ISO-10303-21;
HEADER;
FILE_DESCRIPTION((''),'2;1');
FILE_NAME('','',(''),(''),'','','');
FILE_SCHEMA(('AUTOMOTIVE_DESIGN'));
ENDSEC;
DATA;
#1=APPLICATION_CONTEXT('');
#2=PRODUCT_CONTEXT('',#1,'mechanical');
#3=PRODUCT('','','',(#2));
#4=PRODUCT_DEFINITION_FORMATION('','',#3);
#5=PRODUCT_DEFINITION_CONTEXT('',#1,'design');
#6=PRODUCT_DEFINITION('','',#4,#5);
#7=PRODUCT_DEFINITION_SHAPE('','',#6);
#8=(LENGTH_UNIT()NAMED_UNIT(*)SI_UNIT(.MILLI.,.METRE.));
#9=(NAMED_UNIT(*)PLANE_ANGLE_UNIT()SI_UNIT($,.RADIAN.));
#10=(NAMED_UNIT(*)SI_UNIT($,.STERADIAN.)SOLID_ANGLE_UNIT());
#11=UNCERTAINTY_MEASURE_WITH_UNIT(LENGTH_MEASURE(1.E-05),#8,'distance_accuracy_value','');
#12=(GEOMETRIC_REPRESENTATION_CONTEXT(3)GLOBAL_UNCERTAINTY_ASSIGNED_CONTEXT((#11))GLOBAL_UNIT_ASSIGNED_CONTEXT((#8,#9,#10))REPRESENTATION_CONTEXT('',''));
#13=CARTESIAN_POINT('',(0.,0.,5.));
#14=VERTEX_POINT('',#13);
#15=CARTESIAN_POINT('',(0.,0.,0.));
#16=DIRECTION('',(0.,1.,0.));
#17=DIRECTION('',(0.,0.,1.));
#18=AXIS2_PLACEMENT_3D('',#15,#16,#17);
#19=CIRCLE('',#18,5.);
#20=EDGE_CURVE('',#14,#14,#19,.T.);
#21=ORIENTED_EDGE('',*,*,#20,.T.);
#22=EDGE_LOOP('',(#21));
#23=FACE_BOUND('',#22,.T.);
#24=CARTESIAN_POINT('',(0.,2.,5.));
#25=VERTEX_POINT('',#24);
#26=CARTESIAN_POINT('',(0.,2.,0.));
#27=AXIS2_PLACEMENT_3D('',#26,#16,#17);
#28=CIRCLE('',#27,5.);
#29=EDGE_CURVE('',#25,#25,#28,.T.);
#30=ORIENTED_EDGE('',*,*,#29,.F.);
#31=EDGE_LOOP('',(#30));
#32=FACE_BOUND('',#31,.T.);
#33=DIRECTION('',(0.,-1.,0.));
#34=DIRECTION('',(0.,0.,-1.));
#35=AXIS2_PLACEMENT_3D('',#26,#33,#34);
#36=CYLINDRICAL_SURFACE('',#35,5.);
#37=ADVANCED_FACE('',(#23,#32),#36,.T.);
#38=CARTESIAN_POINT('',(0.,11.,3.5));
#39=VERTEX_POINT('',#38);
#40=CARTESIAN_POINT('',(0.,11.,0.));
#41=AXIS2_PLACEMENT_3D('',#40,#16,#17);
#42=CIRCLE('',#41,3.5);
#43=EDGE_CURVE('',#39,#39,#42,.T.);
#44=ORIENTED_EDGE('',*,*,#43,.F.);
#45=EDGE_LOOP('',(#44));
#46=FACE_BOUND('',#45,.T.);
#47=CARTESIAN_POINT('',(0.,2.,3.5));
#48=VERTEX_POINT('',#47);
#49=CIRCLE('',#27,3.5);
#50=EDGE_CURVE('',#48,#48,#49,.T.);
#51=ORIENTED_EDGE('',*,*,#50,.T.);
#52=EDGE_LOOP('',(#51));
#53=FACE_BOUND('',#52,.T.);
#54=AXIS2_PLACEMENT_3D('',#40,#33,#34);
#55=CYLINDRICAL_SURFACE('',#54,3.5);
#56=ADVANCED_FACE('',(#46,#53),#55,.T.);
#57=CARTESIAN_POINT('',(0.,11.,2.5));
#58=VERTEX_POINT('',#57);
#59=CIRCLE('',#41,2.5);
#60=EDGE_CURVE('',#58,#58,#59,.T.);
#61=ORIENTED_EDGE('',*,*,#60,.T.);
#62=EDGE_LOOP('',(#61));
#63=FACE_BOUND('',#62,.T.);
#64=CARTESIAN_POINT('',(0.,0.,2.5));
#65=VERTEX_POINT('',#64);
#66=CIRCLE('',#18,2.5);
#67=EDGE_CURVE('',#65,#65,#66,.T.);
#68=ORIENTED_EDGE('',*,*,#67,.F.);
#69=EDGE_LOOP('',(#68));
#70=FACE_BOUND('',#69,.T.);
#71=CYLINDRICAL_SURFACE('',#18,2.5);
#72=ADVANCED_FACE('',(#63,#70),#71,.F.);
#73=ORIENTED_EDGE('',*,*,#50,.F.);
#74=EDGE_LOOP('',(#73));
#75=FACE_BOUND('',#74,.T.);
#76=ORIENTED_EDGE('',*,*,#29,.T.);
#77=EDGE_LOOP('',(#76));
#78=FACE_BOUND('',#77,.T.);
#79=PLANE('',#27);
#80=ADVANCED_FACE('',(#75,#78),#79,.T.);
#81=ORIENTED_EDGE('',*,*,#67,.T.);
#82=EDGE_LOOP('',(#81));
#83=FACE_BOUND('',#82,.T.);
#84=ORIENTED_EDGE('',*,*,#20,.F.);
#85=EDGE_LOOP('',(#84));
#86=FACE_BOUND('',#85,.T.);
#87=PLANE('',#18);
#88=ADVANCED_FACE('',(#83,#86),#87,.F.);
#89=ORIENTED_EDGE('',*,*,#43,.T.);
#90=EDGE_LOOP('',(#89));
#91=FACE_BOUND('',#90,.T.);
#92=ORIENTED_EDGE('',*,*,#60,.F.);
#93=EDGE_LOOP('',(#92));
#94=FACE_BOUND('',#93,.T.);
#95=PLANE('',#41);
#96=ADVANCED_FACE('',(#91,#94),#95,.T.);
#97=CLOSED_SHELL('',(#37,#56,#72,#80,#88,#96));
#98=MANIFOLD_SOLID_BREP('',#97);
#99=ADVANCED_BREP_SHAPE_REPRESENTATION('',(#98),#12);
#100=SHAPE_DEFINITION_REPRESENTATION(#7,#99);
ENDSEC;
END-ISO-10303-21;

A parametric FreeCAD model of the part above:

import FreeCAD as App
import Part
import Sketcher
from FreeCAD import Vector

doc = App.newDocument("Part")
body = doc.addObject("PartDesign::Body", "Body")

sketch1 = body.newObject("Sketcher::SketchObject", "Sketch")
sketch1.AttachmentSupport = (doc.getObject("XZ_Plane"), [""])
sketch1.MapMode = "FlatFace"
sketch1.addGeometry(Part.Circle(Vector(0, 0, 0), Vector(0, 0, 1), 5), False)
sketch1.addConstraint(Sketcher.Constraint("Coincident", 0, 3, -1, 1))
sketch1.addConstraint(Sketcher.Constraint("Diameter", 0, 10.0))
pad1 = body.newObject("PartDesign::Pad", "Pad")
pad1.Profile = sketch1
pad1.Length = 2
pad1.Reversed = True

sketch2 = body.newObject("Sketcher::SketchObject", "Sketch001")
sketch2.AttachmentSupport = (doc.getObject("XZ_Plane"), [""])
sketch2.MapMode = "FlatFace"
sketch2.AttachmentOffset = App.Placement(Vector(0, 0, -2), App.Rotation())
sketch2.addGeometry(Part.Circle(Vector(0, 0, 0), Vector(0, 0, 1), 3.5), False)
sketch2.addConstraint(Sketcher.Constraint("Coincident", 0, 3, -1, 1))
sketch2.addConstraint(Sketcher.Constraint("Diameter", 0, 7.0))
pad2 = body.newObject("PartDesign::Pad", "Pad001")
pad2.Profile = sketch2
pad2.Length = 9
pad2.Reversed = True

sketch3 = body.newObject("Sketcher::SketchObject", "Sketch002")
sketch3.AttachmentSupport = (doc.getObject("XZ_Plane"), [""])
sketch3.MapMode = "FlatFace"
sketch3.AttachmentOffset = App.Placement(Vector(0, 0, -11), App.Rotation())
sketch3.addGeometry(Part.Circle(Vector(0, 0, 0), Vector(0, 0, 1), 2.5), False)
sketch3.addConstraint(Sketcher.Constraint("Coincident", 0, 3, -1, 1))
sketch3.addConstraint(Sketcher.Constraint("Diameter", 0, 5.0))
pocket1 = body.newObject("PartDesign::Pocket", "Pocket")
pocket1.Profile = sketch3
pocket1.Type = "ThroughAll"
pocket1.Reversed = True

doc.recompute()
